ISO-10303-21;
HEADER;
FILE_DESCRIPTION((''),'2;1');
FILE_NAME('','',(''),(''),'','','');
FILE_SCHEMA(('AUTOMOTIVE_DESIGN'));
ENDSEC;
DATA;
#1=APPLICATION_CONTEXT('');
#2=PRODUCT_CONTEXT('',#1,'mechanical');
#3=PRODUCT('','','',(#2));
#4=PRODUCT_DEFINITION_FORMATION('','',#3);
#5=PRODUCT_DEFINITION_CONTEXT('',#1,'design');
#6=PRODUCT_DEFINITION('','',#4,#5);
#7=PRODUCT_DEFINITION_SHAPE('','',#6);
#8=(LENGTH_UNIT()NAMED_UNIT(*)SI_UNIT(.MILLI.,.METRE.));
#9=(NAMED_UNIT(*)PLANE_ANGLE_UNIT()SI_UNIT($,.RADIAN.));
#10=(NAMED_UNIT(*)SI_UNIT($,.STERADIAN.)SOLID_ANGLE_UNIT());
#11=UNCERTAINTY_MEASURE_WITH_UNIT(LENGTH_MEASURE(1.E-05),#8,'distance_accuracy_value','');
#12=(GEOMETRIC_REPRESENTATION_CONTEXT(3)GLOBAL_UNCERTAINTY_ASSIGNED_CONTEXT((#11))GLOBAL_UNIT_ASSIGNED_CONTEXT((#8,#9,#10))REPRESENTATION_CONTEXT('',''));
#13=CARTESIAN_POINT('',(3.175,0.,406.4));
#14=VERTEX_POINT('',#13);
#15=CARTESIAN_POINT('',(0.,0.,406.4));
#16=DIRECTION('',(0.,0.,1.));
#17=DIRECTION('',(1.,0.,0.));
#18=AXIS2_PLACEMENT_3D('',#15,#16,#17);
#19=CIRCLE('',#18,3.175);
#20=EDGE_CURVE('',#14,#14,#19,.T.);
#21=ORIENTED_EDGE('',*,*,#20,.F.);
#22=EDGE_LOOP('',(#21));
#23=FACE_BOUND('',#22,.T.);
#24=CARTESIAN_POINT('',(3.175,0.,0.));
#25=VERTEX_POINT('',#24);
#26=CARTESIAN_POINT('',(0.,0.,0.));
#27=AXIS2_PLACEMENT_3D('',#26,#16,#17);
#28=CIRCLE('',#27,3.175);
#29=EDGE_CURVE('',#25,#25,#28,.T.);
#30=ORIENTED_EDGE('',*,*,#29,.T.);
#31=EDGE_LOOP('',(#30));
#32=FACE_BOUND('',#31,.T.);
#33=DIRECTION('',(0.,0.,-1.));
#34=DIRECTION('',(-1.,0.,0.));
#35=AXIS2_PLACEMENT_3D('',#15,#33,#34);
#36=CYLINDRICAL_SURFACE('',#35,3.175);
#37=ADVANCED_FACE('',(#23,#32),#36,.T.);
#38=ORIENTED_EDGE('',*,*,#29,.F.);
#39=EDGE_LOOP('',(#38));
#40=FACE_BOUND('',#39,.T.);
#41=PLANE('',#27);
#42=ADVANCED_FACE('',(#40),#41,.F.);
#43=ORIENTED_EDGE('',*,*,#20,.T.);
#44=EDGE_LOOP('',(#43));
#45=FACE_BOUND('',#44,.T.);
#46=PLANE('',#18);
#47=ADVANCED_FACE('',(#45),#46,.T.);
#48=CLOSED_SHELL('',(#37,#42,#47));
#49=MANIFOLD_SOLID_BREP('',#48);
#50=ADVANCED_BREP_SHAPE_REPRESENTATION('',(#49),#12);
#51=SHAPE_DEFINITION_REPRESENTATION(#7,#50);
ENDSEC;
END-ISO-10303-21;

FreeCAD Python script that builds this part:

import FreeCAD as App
import Part
import Sketcher
Q = App.Units.Quantity

doc = App.newDocument("Part")
body = doc.addObject("PartDesign::Body", "Body")

# Sketch on XY plane
sketch1 = body.newObject("Sketcher::SketchObject", "Sketch")
sketch1.AttachmentSupport = (doc.getObject("XY_Plane"), [""])
sketch1.MapMode = "FlatFace"
sketch1.addGeometry(Part.Circle(App.Vector(0, 0, 0), App.Vector(0, 0, 1), 3.2), False)
sketch1.addConstraint([
    Sketcher.Constraint("Coincident", 0, 3, -1, 1),
    Sketcher.Constraint("Diameter", 0, Q("0.25 in")),
])
pad1 = body.newObject("PartDesign::Pad", "Pad")
pad1.Profile = sketch1
pad1.Length = Q("16 in")

doc.recompute()
